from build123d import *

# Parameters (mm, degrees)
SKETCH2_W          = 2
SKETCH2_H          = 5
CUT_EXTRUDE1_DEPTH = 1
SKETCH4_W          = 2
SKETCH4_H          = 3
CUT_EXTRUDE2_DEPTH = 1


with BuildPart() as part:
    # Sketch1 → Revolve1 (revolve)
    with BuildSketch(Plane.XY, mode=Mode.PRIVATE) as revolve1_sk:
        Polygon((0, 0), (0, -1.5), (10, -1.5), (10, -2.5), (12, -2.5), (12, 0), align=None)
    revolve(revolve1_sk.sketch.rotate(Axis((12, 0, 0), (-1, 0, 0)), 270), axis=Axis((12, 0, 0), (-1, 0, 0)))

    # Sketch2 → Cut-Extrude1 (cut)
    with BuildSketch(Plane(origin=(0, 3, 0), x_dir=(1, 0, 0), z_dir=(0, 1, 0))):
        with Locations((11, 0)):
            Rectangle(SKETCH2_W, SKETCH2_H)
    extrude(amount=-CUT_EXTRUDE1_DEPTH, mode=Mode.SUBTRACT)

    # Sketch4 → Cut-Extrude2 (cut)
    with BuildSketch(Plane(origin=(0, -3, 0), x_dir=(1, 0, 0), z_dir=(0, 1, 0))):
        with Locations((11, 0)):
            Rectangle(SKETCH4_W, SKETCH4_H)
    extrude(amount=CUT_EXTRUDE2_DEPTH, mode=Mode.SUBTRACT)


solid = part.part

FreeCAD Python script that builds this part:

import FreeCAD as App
import Part
import Sketcher
from FreeCAD import Vector


def add_polygon(sketch, points):
    """Adds a closed chain of lines whose ends are joined by coincident constraints."""
    first, n = sketch.GeometryCount, len(points)
    for a, b in zip(points, points[1:] + points[:1]):
        sketch.addGeometry(Part.LineSegment(App.Vector(*a, 0), App.Vector(*b, 0)), False)
    for i in range(n):
        sketch.addConstraint(Sketcher.Constraint("Coincident", first + i, 2, first + (i + 1) % n, 1))

doc = App.newDocument("Part")
params = doc.addObject("Spreadsheet::Sheet", "Params")
for row, (alias, value) in enumerate([
    ("sketch1_width", "10 mm"),
    ("sketch1_width2", "2 mm"),
    ("sketch1_height", "1 mm"),
    ("sketch1_height2", "1.5 mm"),
    ("revolution_angle", "360 deg"),
    ("sketch2_width", "2 mm"),
    ("sketch2_height", "5 mm"),
    ("pocket1_length", "1 mm"),
    ("sketch3_width", "2 mm"),
    ("sketch3_height", "3 mm"),
    ("pocket2_length", "1 mm"),
], start=1):
    params.set(f"A{row}", alias)
    params.set(f"B{row}", "=" + value)
    params.setAlias(f"B{row}", alias)

body = doc.addObject("PartDesign::Body", "Body")

# Sketch on XY plane
sketch1 = doc.addObject("Sketcher::SketchObject", "Sketch")
body.addObject(sketch1)
sketch1.AttachmentSupport = (doc.XY_Plane, [""])
sketch1.MapMode = "FlatFace"
add_polygon(sketch1, [(0, 0), (0, -1.5), (10, -1.5), (10, -2.5), (12, -2.5), (12, 0)])  # lines 0-5
sketch1.addConstraint([
    Sketcher.Constraint("Vertical", 0),
    Sketcher.Constraint("Horizontal", 1),
    Sketcher.Constraint("Vertical", 2),
    Sketcher.Constraint("Horizontal", 3),
    Sketcher.Constraint("Vertical", 4),
    Sketcher.Constraint("Horizontal", 5),
    Sketcher.Constraint("Coincident", 5, 2, -1, 1),
    Sketcher.Constraint("DistanceX", 1, 1, 1, 2, 10.0),
    Sketcher.Constraint("DistanceX", 3, 1, 3, 2, 2.0),
    Sketcher.Constraint("DistanceY", 2, 2, 2, 1, 1.0),
    Sketcher.Constraint("DistanceY", 0, 2, 0, 1, 1.5),
])
sketch1.setExpression("Constraints[13]", "Params.sketch1_width")
sketch1.setExpression("Constraints[14]", "Params.sketch1_width2")
sketch1.setExpression("Constraints[15]", "Params.sketch1_height")
sketch1.setExpression("Constraints[16]", "Params.sketch1_height2")
revolution = doc.addObject("PartDesign::Revolution", "Revolution")
body.addObject(revolution)
revolution.Profile = sketch1
revolution.ReferenceAxis = (sketch1, ["H_Axis"])
revolution.setExpression("Angle", "Params.revolution_angle")

# Sketch on XZ plane
sketch2 = doc.addObject("Sketcher::SketchObject", "Sketch001")
body.addObject(sketch2)
sketch2.AttachmentSupport = (doc.XZ_Plane, [""])
sketch2.MapMode = "FlatFace"
sketch2.AttachmentOffset = App.Placement(Vector(0, 0, -3), App.Rotation())
add_polygon(sketch2, [(10, -2.5), (10, 2.5), (12, 2.5), (12, -2.5)])  # lines 0-3
sketch2.addConstraint([
    Sketcher.Constraint("Vertical", 0),
    Sketcher.Constraint("Horizontal", 1),
    Sketcher.Constraint("Vertical", 2),
    Sketcher.Constraint("Horizontal", 3),
    Sketcher.Constraint("DistanceX", 1, 1, 1, 2, 2.0),
    Sketcher.Constraint("DistanceY", 0, 1, 0, 2, 5.0),
    Sketcher.Constraint("DistanceX", -1, 1, 0, 2, 10.0),
    Sketcher.Constraint("DistanceY", -1, 1, 0, 2, 2.5),
])
sketch2.setExpression("Constraints[8]", "Params.sketch2_width")
sketch2.setExpression("Constraints[9]", "Params.sketch2_height")
pocket1 = doc.addObject("PartDesign::Pocket", "Pocket")
body.addObject(pocket1)
pocket1.Profile = sketch2
pocket1.setExpression("Length", "Params.pocket1_length")
pocket1.Reversed = True

# Sketch on XZ plane
sketch3 = doc.addObject("Sketcher::SketchObject", "Sketch002")
body.addObject(sketch3)
sketch3.AttachmentSupport = (doc.XZ_Plane, [""])
sketch3.MapMode = "FlatFace"
sketch3.AttachmentOffset = App.Placement(Vector(0, 0, 3), App.Rotation())
add_polygon(sketch3, [(10, -1.5), (10, 1.5), (12, 1.5), (12, -1.5)])  # lines 0-3
sketch3.addConstraint([
    Sketcher.Constraint("Vertical", 0),
    Sketcher.Constraint("Horizontal", 1),
    Sketcher.Constraint("Vertical", 2),
    Sketcher.Constraint("Horizontal", 3),
    Sketcher.Constraint("DistanceX", 1, 1, 1, 2, 2.0),
    Sketcher.Constraint("DistanceY", 0, 1, 0, 2, 3.0),
    Sketcher.Constraint("DistanceX", -1, 1, 0, 2, 10.0),
    Sketcher.Constraint("DistanceY", -1, 1, 0, 2, 1.5),
])
sketch3.setExpression("Constraints[8]", "Params.sketch3_width")
sketch3.setExpression("Constraints[9]", "Params.sketch3_height")
pocket2 = doc.addObject("PartDesign::Pocket", "Pocket001")
body.addObject(pocket2)
pocket2.Profile = sketch3
pocket2.setExpression("Length", "Params.pocket2_length")

doc.recompute()
